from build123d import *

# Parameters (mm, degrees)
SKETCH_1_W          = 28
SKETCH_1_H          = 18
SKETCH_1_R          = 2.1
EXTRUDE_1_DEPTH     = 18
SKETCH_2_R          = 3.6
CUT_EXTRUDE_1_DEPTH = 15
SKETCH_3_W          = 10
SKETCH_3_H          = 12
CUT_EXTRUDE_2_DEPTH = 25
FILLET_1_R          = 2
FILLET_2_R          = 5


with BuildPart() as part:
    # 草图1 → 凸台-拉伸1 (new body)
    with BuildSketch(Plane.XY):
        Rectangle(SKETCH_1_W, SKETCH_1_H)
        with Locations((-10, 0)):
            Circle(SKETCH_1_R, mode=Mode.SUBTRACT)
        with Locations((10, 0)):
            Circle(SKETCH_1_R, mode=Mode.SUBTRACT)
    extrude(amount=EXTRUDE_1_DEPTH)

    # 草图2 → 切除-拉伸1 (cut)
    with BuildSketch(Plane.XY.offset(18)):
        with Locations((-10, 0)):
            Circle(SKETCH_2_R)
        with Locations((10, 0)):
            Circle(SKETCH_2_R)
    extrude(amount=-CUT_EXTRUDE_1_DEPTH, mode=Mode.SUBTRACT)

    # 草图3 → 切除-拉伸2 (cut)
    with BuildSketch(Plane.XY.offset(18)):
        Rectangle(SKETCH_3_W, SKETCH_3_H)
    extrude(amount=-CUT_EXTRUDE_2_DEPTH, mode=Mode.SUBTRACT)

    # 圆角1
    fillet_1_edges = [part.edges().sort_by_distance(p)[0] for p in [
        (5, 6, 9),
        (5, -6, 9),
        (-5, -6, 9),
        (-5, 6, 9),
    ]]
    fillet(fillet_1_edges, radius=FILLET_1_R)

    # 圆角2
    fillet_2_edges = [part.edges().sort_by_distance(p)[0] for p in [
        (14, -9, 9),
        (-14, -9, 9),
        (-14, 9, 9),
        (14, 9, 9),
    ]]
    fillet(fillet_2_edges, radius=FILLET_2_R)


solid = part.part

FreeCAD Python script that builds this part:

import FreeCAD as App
import Part
import Sketcher
Q = App.Units.Quantity


def edges_at(feature, points):
    """Names of the edges that pass closest to the given points."""
    edges = feature.Shape.Edges
    near = lambda p: min(range(len(edges)), key=lambda i: edges[i].distToShape(Part.Vertex(*p))[0])
    return sorted({f"Edge{near(p) + 1}" for p in points})

doc = App.newDocument("Part")
body = doc.addObject("PartDesign::Body", "Body")

sketch1 = doc.addObject("Sketcher::SketchObject", "Sketch")
body.addObject(sketch1)
sketch1.AttachmentSupport = (doc.XY_Plane, [""])
sketch1.MapMode = "FlatFace"
sketch1.addGeometry([
    Part.LineSegment(App.Vector(-14, 9, 0), App.Vector(-14, -9, 0)),
    Part.LineSegment(App.Vector(-14, -9, 0), App.Vector(14, -9, 0)),
    Part.LineSegment(App.Vector(14, -9, 0), App.Vector(14, 9, 0)),
    Part.LineSegment(App.Vector(14, 9, 0), App.Vector(-14, 9, 0)),
    Part.Circle(App.Vector(-10, 0, 0), App.Vector(0, 0, 1), 2.1),
    Part.Circle(App.Vector(10, 0, 0), App.Vector(0, 0, 1), 2.1),
], False)
sketch1.addConstraint([
    Sketcher.Constraint("Coincident", 0, 2, 1, 1),
    Sketcher.Constraint("Coincident", 1, 2, 2, 1),
    Sketcher.Constraint("Coincident", 2, 2, 3, 1),
    Sketcher.Constraint("Coincident", 3, 2, 0, 1),
    Sketcher.Constraint("Vertical", 0),
    Sketcher.Constraint("Horizontal", 1),
    Sketcher.Constraint("Vertical", 2),
    Sketcher.Constraint("Horizontal", 3),
    Sketcher.Constraint("Equal", 4, 5),
    Sketcher.Constraint("Symmetric", 4, 3, 5, 3, -1, 1),
    Sketcher.Constraint("Symmetric", 0, 2, 2, 2, -1, 1),
    Sketcher.Constraint("PointOnObject", 4, 3, -1),
    Sketcher.Constraint("Diameter", 4, Q("4.2 mm")),
    Sketcher.Constraint("DistanceX", 1, 1, 1, 2, Q("28 mm")),
    Sketcher.Constraint("DistanceY", 0, 2, 0, 1, Q("18 mm")),
    Sketcher.Constraint("DistanceX", 4, 3, -1, 1, Q("10 mm")),
])
pad1 = doc.addObject("PartDesign::Pad", "Pad")
body.addObject(pad1)
pad1.Profile = sketch1
pad1.Length = 18

sketch2 = doc.addObject("Sketcher::SketchObject", "Sketch001")
body.addObject(sketch2)
sketch2.AttachmentSupport = (doc.XY_Plane, [""])
sketch2.MapMode = "FlatFace"
sketch2.AttachmentOffset = App.Placement(App.Vector(0, 0, 18), App.Rotation())
sketch2.addGeometry([
    Part.Circle(App.Vector(-10, 0, 0), App.Vector(0, 0, 1), 3.6),
    Part.Circle(App.Vector(10, 0, 0), App.Vector(0, 0, 1), 3.6),
], False)
sketch2.addConstraint([
    Sketcher.Constraint("Equal", 0, 1),
    Sketcher.Constraint("Symmetric", 0, 3, 1, 3, -1, 1),
    Sketcher.Constraint("PointOnObject", 0, 3, -1),
    Sketcher.Constraint("Diameter", 0, Q("7.2 mm")),
    Sketcher.Constraint("DistanceX", 0, 3, -1, 1, Q("10 mm")),
])
pocket1 = doc.addObject("PartDesign::Pocket", "Pocket")
body.addObject(pocket1)
pocket1.Profile = sketch2
pocket1.Length = 15

sketch3 = doc.addObject("Sketcher::SketchObject", "Sketch002")
body.addObject(sketch3)
sketch3.AttachmentSupport = (doc.XY_Plane, [""])
sketch3.MapMode = "FlatFace"
sketch3.AttachmentOffset = App.Placement(App.Vector(0, 0, 18), App.Rotation())
sketch3.addGeometry([
    Part.LineSegment(App.Vector(-5, 6, 0), App.Vector(-5, -6, 0)),
    Part.LineSegment(App.Vector(-5, -6, 0), App.Vector(5, -6, 0)),
    Part.LineSegment(App.Vector(5, -6, 0), App.Vector(5, 6, 0)),
    Part.LineSegment(App.Vector(5, 6, 0), App.Vector(-5, 6, 0)),
], False)
sketch3.addConstraint([
    Sketcher.Constraint("Coincident", 0, 2, 1, 1),
    Sketcher.Constraint("Coincident", 1, 2, 2, 1),
    Sketcher.Constraint("Coincident", 2, 2, 3, 1),
    Sketcher.Constraint("Coincident", 3, 2, 0, 1),
    Sketcher.Constraint("Vertical", 0),
    Sketcher.Constraint("Horizontal", 1),
    Sketcher.Constraint("Vertical", 2),
    Sketcher.Constraint("Horizontal", 3),
    Sketcher.Constraint("Symmetric", 0, 2, 2, 2, -1, 1),
    Sketcher.Constraint("DistanceX", 1, 1, 1, 2, Q("10 mm")),
    Sketcher.Constraint("DistanceY", 0, 2, 0, 1, Q("12 mm")),
])
pocket2 = doc.addObject("PartDesign::Pocket", "Pocket001")
body.addObject(pocket2)
pocket2.Profile = sketch3
pocket2.Length = 25
doc.recompute()

fillet = doc.addObject("PartDesign::Fillet", "Fillet")
body.addObject(fillet)
fillet.Base = (pocket2, edges_at(pocket2, [
    (5, 6, 9),
    (5, -6, 9),
    (-5, -6, 9),
    (-5, 6, 9),
]))
fillet.Radius = 2
doc.recompute()

fillet2 = doc.addObject("PartDesign::Fillet", "Fillet001")
body.addObject(fillet2)
fillet2.Base = (fillet, edges_at(fillet, [
    (14, -9, 9),
    (-14, -9, 9),
    (-14, 9, 9),
    (14, 9, 9),
]))
fillet2.Radius = 5

doc.recompute()
